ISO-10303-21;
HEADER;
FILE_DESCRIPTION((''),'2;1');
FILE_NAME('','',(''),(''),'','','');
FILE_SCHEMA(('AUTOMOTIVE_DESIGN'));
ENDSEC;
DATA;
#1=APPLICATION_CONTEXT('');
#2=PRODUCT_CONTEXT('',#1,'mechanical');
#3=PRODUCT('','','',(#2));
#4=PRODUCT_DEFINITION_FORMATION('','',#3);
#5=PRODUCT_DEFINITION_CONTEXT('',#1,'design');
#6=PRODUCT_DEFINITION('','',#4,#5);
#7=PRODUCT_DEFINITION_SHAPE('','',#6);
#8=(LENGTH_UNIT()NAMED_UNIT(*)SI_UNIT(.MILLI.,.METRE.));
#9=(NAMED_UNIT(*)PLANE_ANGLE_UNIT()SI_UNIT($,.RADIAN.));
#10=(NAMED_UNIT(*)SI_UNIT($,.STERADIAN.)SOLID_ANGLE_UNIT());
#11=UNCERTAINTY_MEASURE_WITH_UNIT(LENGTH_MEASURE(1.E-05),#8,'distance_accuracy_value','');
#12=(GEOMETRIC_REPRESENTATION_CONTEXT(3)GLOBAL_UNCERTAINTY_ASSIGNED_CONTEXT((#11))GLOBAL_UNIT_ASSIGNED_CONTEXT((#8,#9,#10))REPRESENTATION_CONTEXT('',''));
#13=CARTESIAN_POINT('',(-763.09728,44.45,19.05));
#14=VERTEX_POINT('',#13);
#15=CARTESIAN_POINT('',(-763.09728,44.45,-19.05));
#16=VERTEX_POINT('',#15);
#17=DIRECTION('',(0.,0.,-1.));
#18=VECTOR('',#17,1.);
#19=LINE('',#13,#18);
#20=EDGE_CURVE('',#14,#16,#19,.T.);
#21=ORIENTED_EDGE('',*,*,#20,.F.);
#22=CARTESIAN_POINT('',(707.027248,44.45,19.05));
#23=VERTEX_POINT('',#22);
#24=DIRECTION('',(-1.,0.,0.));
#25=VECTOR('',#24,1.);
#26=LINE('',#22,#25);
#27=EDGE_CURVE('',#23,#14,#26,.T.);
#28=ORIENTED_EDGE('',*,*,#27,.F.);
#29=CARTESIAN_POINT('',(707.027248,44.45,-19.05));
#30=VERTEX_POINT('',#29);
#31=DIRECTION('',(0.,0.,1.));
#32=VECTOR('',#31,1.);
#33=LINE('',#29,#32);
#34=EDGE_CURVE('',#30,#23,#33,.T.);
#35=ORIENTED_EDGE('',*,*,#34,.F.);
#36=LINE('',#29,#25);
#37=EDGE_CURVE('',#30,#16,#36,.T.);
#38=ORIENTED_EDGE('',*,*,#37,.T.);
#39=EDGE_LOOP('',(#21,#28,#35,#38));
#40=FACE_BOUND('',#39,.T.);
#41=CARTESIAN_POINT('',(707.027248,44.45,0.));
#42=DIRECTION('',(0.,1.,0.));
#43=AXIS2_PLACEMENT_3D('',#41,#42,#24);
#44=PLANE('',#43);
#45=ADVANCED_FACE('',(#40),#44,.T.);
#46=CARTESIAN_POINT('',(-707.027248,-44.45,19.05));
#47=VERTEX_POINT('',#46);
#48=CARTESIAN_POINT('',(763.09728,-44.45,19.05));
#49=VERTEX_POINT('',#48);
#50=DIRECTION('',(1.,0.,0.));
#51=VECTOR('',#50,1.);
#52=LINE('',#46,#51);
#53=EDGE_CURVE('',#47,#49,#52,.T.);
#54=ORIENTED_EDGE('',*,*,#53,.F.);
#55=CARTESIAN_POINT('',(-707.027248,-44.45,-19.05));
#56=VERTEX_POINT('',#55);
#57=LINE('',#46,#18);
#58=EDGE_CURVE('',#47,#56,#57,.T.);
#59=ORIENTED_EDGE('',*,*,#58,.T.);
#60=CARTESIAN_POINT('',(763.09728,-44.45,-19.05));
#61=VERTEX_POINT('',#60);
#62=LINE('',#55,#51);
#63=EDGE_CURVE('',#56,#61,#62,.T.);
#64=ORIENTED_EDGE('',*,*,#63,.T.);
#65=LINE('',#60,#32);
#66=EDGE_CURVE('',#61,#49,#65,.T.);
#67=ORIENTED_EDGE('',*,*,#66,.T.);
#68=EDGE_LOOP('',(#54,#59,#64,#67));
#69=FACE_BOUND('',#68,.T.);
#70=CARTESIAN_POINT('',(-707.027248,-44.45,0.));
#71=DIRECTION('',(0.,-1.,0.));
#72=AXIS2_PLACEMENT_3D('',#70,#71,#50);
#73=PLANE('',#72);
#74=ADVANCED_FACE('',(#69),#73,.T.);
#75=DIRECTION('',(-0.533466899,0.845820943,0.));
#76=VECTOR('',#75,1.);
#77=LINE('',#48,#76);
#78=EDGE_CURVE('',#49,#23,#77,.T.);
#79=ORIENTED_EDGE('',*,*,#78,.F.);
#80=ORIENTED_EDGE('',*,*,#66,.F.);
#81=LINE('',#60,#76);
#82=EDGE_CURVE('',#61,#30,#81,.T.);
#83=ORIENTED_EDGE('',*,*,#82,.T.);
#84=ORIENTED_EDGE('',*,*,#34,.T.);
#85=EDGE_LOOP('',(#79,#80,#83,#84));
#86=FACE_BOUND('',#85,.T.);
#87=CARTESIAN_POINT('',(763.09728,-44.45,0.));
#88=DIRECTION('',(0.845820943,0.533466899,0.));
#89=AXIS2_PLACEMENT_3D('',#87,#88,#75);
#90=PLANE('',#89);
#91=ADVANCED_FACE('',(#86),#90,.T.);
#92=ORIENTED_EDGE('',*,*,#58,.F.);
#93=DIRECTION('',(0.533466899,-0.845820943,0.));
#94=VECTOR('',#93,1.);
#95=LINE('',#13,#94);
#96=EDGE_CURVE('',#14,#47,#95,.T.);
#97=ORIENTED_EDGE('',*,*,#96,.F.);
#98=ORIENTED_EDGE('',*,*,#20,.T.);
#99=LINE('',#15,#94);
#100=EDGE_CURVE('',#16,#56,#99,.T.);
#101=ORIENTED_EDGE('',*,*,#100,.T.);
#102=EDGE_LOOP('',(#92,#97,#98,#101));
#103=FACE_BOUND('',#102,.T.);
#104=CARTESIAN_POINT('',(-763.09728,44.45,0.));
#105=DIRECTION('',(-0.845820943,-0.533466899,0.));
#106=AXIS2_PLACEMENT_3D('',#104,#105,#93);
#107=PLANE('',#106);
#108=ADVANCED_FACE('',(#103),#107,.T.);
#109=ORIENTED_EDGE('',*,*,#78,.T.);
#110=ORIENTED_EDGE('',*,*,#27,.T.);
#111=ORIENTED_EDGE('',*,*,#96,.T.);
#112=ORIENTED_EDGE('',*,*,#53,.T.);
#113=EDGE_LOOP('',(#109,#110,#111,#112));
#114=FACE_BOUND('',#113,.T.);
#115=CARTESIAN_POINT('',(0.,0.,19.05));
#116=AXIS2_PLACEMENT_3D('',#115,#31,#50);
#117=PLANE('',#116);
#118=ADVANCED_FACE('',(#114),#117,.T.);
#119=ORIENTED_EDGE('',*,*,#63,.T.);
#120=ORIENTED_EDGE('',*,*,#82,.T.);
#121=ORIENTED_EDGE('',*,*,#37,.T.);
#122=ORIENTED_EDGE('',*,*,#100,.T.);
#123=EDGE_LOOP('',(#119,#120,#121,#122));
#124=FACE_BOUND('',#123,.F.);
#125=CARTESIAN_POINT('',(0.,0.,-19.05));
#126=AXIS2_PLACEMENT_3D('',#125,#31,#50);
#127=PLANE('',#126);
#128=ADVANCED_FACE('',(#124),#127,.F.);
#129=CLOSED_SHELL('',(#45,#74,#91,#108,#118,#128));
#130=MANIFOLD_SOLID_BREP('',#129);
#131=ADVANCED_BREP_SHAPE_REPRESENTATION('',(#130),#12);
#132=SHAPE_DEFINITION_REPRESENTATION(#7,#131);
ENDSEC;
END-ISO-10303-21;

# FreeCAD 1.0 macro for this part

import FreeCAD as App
import Part
import Sketcher

V = App.Vector
Q = App.Units.Quantity


def add_polygon(sketch, points):
    """Adds a closed chain of lines whose ends are joined by coincident constraints."""
    first, n = sketch.GeometryCount, len(points)
    for a, b in zip(points, points[1:] + points[:1]):
        sketch.addGeometry(Part.LineSegment(App.Vector(*a, 0), App.Vector(*b, 0)), False)
    for i in range(n):
        sketch.addConstraint(Sketcher.Constraint("Coincident", first + i, 2, first + (i + 1) % n, 1))

doc = App.newDocument("Part")
body = doc.addObject("PartDesign::Body", "Body")

sketch1 = body.newObject("Sketcher::SketchObject", "Sketch")
sketch1.AttachmentSupport = (doc.getObject("XY_Plane"), [""])
sketch1.MapMode = "FlatFace"
add_polygon(sketch1, [(-707.027248, -44.45), (763.09728, -44.45), (707.027248, 44.45), (-763.09728, 44.45)])
sketch1.addConstraint([
    Sketcher.Constraint("Horizontal", 0),
    Sketcher.Constraint("Horizontal", 2),
    Sketcher.Constraint("Symmetric", 0, 2, 2, 2, -1, 1),
    Sketcher.Constraint("Parallel", 1, 3),
    Sketcher.Constraint("DistanceY", 0, 2, 1, 2, Q("3.5 in")),
    Sketcher.Constraint("Angle", 1, Q("122.24 deg")),
    Sketcher.Constraint("DistanceX", -1, 1, 0, 2, Q("30.0432 in")),
])
pad1 = body.newObject("PartDesign::Pad", "Pad")
pad1.Profile = sketch1
pad1.Length = Q("1.5 in")
pad1.Midplane = True

doc.recompute()
